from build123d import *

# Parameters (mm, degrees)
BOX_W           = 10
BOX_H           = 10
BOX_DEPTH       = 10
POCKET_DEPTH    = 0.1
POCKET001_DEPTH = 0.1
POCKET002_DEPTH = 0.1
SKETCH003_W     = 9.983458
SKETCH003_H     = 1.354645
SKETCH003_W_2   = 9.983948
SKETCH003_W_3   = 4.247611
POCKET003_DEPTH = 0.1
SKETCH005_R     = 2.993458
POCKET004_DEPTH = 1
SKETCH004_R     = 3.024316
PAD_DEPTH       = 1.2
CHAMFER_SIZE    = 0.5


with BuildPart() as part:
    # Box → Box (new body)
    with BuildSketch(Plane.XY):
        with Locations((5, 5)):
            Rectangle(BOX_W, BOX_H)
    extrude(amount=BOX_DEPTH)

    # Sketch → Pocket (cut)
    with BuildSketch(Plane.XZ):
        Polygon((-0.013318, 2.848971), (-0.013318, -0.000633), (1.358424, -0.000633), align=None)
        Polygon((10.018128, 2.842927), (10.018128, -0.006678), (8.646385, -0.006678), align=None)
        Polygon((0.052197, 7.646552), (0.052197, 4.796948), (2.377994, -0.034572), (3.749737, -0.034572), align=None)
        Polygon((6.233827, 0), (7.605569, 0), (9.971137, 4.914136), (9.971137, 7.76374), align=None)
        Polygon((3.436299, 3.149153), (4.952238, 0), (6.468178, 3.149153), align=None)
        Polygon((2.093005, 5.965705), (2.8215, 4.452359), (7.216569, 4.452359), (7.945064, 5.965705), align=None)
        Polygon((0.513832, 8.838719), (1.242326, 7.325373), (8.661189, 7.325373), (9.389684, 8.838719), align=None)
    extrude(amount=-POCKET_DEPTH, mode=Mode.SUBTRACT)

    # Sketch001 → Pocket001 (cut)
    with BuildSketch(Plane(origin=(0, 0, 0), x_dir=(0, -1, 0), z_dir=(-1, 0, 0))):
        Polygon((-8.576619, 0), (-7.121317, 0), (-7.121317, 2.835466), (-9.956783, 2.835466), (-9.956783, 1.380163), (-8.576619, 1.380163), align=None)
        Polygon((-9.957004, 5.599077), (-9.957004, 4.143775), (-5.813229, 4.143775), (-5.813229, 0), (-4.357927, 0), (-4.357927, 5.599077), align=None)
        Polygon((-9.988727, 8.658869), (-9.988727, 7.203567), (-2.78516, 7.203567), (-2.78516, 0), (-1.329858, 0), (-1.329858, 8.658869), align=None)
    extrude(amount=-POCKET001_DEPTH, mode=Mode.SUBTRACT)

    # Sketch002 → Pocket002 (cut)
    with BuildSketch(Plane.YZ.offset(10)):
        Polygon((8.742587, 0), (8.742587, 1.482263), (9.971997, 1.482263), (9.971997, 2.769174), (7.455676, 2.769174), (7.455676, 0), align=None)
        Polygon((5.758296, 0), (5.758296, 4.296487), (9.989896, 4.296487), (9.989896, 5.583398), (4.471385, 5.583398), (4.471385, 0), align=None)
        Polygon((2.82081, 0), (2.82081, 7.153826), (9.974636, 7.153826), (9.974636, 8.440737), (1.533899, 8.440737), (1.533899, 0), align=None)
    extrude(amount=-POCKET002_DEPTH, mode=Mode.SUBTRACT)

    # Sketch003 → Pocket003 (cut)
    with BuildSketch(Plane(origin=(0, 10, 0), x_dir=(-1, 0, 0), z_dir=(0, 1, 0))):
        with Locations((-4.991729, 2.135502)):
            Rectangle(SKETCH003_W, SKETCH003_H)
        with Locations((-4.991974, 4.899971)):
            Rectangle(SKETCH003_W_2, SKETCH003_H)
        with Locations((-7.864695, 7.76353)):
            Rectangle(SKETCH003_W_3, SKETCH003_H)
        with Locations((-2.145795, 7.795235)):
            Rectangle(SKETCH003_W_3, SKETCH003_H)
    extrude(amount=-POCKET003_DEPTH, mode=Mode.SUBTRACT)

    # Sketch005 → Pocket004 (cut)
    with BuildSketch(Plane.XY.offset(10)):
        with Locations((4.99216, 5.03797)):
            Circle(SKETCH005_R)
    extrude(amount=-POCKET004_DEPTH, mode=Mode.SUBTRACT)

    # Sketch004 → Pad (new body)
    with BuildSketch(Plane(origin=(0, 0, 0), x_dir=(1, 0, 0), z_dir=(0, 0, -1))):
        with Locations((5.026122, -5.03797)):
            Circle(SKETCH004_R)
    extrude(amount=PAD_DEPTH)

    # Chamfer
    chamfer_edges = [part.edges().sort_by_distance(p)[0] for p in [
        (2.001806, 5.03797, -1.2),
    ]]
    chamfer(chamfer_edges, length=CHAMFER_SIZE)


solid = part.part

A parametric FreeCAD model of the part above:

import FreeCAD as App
import Part
import Sketcher
from FreeCAD import Vector


def edges_at(feature, points):
    """Names of the edges that pass closest to the given points."""
    edges = feature.Shape.Edges
    near = lambda p: min(range(len(edges)), key=lambda i: edges[i].distToShape(Part.Vertex(*p))[0])
    return sorted({f"Edge{near(p) + 1}" for p in points})


def add_polygon(sketch, points):
    """Adds a closed chain of lines whose ends are joined by coincident constraints."""
    first, n = sketch.GeometryCount, len(points)
    for a, b in zip(points, points[1:] + points[:1]):
        sketch.addGeometry(Part.LineSegment(App.Vector(*a, 0), App.Vector(*b, 0)), False)
    for i in range(n):
        sketch.addConstraint(Sketcher.Constraint("Coincident", first + i, 2, first + (i + 1) % n, 1))

doc = App.newDocument("Part")
body = doc.addObject("PartDesign::Body", "Body")

# Sketch on XY plane
sketch1 = doc.addObject("Sketcher::SketchObject", "Sketch")
body.addObject(sketch1)
sketch1.AttachmentSupport = (doc.XY_Plane, [""])
sketch1.MapMode = "FlatFace"
add_polygon(sketch1, [(0, 10), (0, 0), (10, 0), (10, 10)])  # lines 0-3
sketch1.addConstraint([
    Sketcher.Constraint("Vertical", 0),
    Sketcher.Constraint("Horizontal", 1),
    Sketcher.Constraint("Vertical", 2),
    Sketcher.Constraint("Horizontal", 3),
    Sketcher.Constraint("Coincident", 0, 2, -1, 1),
    Sketcher.Constraint("Equal", 3, 0),
    Sketcher.Constraint("DistanceX", 1, 1, 1, 2, 10.0),
])
pad1 = doc.addObject("PartDesign::Pad", "Pad")
body.addObject(pad1)
pad1.Profile = sketch1
pad1.Length = 10

# Sketch on XZ plane
sketch2 = doc.addObject("Sketcher::SketchObject", "Sketch001")
body.addObject(sketch2)
sketch2.AttachmentSupport = (doc.XZ_Plane, [""])
sketch2.MapMode = "FlatFace"
add_polygon(sketch2, [(0, 2.8), (0, 0), (1.4, 0)])  # lines 0-2
add_polygon(sketch2, [(10, 0), (10, 2.8), (8.6, 0)])  # lines 3-5
add_polygon(sketch2, [(0.1, 7.6), (0.1, 4.8), (2.4, 0), (3.7, 0)])  # lines 6-9
add_polygon(sketch2, [(6.2, 0), (7.6, 0), (10, 4.9), (10, 7.8)])  # lines 10-13
add_polygon(sketch2, [(3.4, 3.1), (5, 0), (6.5, 3.1)])  # lines 14-16
add_polygon(sketch2, [(2.1, 6), (2.8, 4.5), (7.2, 4.5), (7.9, 6)])  # lines 17-20
add_polygon(sketch2, [(0.5, 8.8), (1.2, 7.3), (8.7, 7.3), (9.4, 8.8)])  # lines 21-24
sketch2.addConstraint([
    Sketcher.Constraint("Vertical", 0),
    Sketcher.Constraint("Horizontal", 1),
    Sketcher.Constraint("Vertical", 3),
    Sketcher.Constraint("Horizontal", 5),
    Sketcher.Constraint("Vertical", 6),
    Sketcher.Constraint("Horizontal", 8),
    Sketcher.Constraint("Horizontal", 10),
    Sketcher.Constraint("Vertical", 12),
    Sketcher.Constraint("Horizontal", 16),
    Sketcher.Constraint("Horizontal", 18),
    Sketcher.Constraint("Horizontal", 20),
    Sketcher.Constraint("Horizontal", 22),
    Sketcher.Constraint("Horizontal", 24),
    Sketcher.Constraint("PointOnObject", 10, 2, -1),
    Sketcher.Constraint("PointOnObject", 14, 2, -1),
    Sketcher.Constraint("Parallel", 2, 7),
    Sketcher.Constraint("Parallel", 7, 9),
    Sketcher.Constraint("Parallel", 4, 11),
    Sketcher.Constraint("Parallel", 11, 13),
    Sketcher.Constraint("Parallel", 9, 14),
    Sketcher.Constraint("Parallel", 13, 15),
    Sketcher.Constraint("Parallel", 14, 17),
    Sketcher.Constraint("Parallel", 15, 19),
    Sketcher.Constraint("Parallel", 17, 21),
    Sketcher.Constraint("Parallel", 19, 23),
    Sketcher.Constraint("Equal", 1, 5),
    Sketcher.Constraint("Equal", 5, 8),
    Sketcher.Constraint("Equal", 8, 10),
    Sketcher.Constraint("Equal", 0, 3),
    Sketcher.Constraint("Equal", 19, 21),
    Sketcher.Constraint("DistanceX", 16, 2, 16, 1, 3.031879),
    Sketcher.Constraint("DistanceX", 18, 1, 18, 2, 4.395069),
    Sketcher.Constraint("DistanceX", 20, 2, 20, 1, 5.852059),
    Sketcher.Constraint("DistanceX", -1, 1, 16, 2, 3.436299),
    Sketcher.Constraint("DistanceX", -1, 1, 17, 2, 2.8215),
    Sketcher.Constraint("DistanceX", 8, 2, 11, 2, 6.2214),
    Sketcher.Constraint("DistanceX", 13, 2, 5, 2, 3.784301),
    Sketcher.Constraint("DistanceX", 8, 2, 14, 2, 1.202501),
    Sketcher.Constraint("Distance", 2, 3.162581),
    Sketcher.Constraint("Distance", 14, 3.49503),
    Sketcher.Constraint("DistanceX", 22, 1, 22, 2, 7.418863),
    Sketcher.Constraint("DistanceY", -1, 1, 2, 2, 2.848971),
    Sketcher.Constraint("DistanceX", -1, 1, 3, 2, 10.018128),
    Sketcher.Constraint("DistanceY", -1, 1, 6, 2, 4.796948),
    Sketcher.Constraint("DistanceY", -1, 1, 17, 2, 4.452359),
    Sketcher.Constraint("DistanceX", -1, 1, 22, 2, 8.661189),
    Sketcher.Constraint("DistanceY", -1, 1, 23, 2, 8.838719),
    Sketcher.Constraint("DistanceY", 1, 2, 3, 2, 2.84356),
    Sketcher.Constraint("DistanceX", 1, 2, 4, 2, 7.287961),
    Sketcher.Constraint("DistanceX", 6, 2, 4, 2, 8.594188),
])
pocket1 = doc.addObject("PartDesign::Pocket", "Pocket")
body.addObject(pocket1)
pocket1.Profile = sketch2
pocket1.Length = 0.1

# Sketch on YZ plane
sketch3 = doc.addObject("Sketcher::SketchObject", "Sketch002")
body.addObject(sketch3)
sketch3.AttachmentSupport = (doc.YZ_Plane, [""])
sketch3.MapMode = "FlatFace"
add_polygon(sketch3, [(8.6, 0), (7.1, 0), (7.1, 2.8), (10, 2.8), (10, 1.4), (8.6, 1.4)])  # lines 0-5
add_polygon(sketch3, [(10, 5.6), (10, 4.1), (5.8, 4.1), (5.8, 0), (4.4, 0), (4.4, 5.6)])  # lines 6-11
add_polygon(sketch3, [(10, 8.7), (10, 7.2), (2.8, 7.2), (2.8, 0), (1.3, 0), (1.3, 8.7)])  # lines 12-17
sketch3.addConstraint([
    Sketcher.Constraint("Horizontal", 0),
    Sketcher.Constraint("Vertical", 1),
    Sketcher.Constraint("Horizontal", 2),
    Sketcher.Constraint("Vertical", 3),
    Sketcher.Constraint("Horizontal", 4),
    Sketcher.Constraint("Vertical", 5),
    Sketcher.Constraint("Vertical", 6),
    Sketcher.Constraint("Horizontal", 7),
    Sketcher.Constraint("Vertical", 8),
    Sketcher.Constraint("Horizontal", 9),
    Sketcher.Constraint("Vertical", 10),
    Sketcher.Constraint("Horizontal", 11),
    Sketcher.Constraint("Vertical", 12),
    Sketcher.Constraint("Horizontal", 13),
    Sketcher.Constraint("Vertical", 14),
    Sketcher.Constraint("Horizontal", 15),
    Sketcher.Constraint("Vertical", 16),
    Sketcher.Constraint("Horizontal", 17),
    Sketcher.Constraint("PointOnObject", 0, 2, -1),
    Sketcher.Constraint("PointOnObject", 8, 2, -1),
    Sketcher.Constraint("PointOnObject", 14, 2, -1),
    Sketcher.Constraint("Equal", 0, 9),
    Sketcher.Constraint("Equal", 9, 15),
    Sketcher.Constraint("Equal", 2, 1),
    Sketcher.Constraint("Equal", 15, 3),
    Sketcher.Constraint("Equal", 3, 6),
    Sketcher.Constraint("Equal", 7, 8),
    Sketcher.Constraint("Equal", 6, 12),
    Sketcher.Constraint("Equal", 13, 14),
    Sketcher.Constraint("DistanceX", 9, 2, 9, 1, 1.455302),
    Sketcher.Constraint("DistanceX", 17, 1, 17, 2, 8.658869),
    Sketcher.Constraint("DistanceY", 2, 2, 12, 2, 4.368101),
    Sketcher.Constraint("DistanceX", 7, 2, 12, 2, 4.175498),
    Sketcher.Constraint("DistanceX", 7, 2, 7, 1, 4.143775),
    Sketcher.Constraint("DistanceX", -1, 1, 4, 2, 8.576619),
    Sketcher.Constraint("DistanceX", -1, 1, 7, 2, 5.813229),
])
pocket2 = doc.addObject("PartDesign::Pocket", "Pocket001")
body.addObject(pocket2)
pocket2.Profile = sketch3
pocket2.Length = 0.1
pocket2.Reversed = True

# Sketch on YZ plane
sketch4 = doc.addObject("Sketcher::SketchObject", "Sketch003")
body.addObject(sketch4)
sketch4.AttachmentSupport = (doc.YZ_Plane, [""])
sketch4.MapMode = "FlatFace"
sketch4.AttachmentOffset = App.Placement(Vector(0, 0, 10), App.Rotation())
add_polygon(sketch4, [(8.7, 0), (8.7, 1.5), (10, 1.5), (10, 2.8), (7.5, 2.8), (7.5, 0)])  # lines 0-5
add_polygon(sketch4, [(5.8, 0), (5.8, 4.3), (10, 4.3), (10, 5.6), (4.5, 5.6), (4.5, 0)])  # lines 6-11
add_polygon(sketch4, [(2.8, 0), (2.8, 7.2), (10, 7.2), (10, 8.4), (1.5, 8.4), (1.5, 0)])  # lines 12-17
sketch4.addConstraint([
    Sketcher.Constraint("Vertical", 0),
    Sketcher.Constraint("Horizontal", 1),
    Sketcher.Constraint("Vertical", 2),
    Sketcher.Constraint("Horizontal", 3),
    Sketcher.Constraint("Vertical", 4),
    Sketcher.Constraint("Horizontal", 5),
    Sketcher.Constraint("Vertical", 6),
    Sketcher.Constraint("Horizontal", 7),
    Sketcher.Constraint("Vertical", 8),
    Sketcher.Constraint("Horizontal", 9),
    Sketcher.Constraint("Vertical", 10),
    Sketcher.Constraint("Horizontal", 11),
    Sketcher.Constraint("Vertical", 12),
    Sketcher.Constraint("Horizontal", 13),
    Sketcher.Constraint("Vertical", 14),
    Sketcher.Constraint("Horizontal", 15),
    Sketcher.Constraint("Vertical", 16),
    Sketcher.Constraint("Horizontal", 17),
    Sketcher.Constraint("PointOnObject", 4, 2, -1),
    Sketcher.Constraint("PointOnObject", 10, 2, -1),
    Sketcher.Constraint("PointOnObject", 16, 2, -1),
    Sketcher.Constraint("Equal", 5, 11),
    Sketcher.Constraint("Equal", 11, 17),
    Sketcher.Constraint("Equal", 17, 2),
    Sketcher.Constraint("Equal", 2, 8),
    Sketcher.Constraint("Equal", 13, 12),
    Sketcher.Constraint("Equal", 8, 14),
    Sketcher.Constraint("DistanceX", 7, 1, 7, 2, 4.2316),
    Sketcher.Constraint("DistanceX", 1, 1, 1, 2, 1.22941),
    Sketcher.Constraint("DistanceX", 3, 2, 3, 1, 2.516321),
    Sketcher.Constraint("DistanceX", -1, 1, 15, 2, 1.533899),
    Sketcher.Constraint("DistanceX", 6, 2, 2, 2, 4.213701),
    Sketcher.Constraint("DistanceX", 13, 1, 13, 2, 7.153826),
    Sketcher.Constraint("DistanceY", 0, 1, 0, 2, 1.482263),
    Sketcher.Constraint("DistanceY", 6, 1, 6, 2, 4.296487),
    Sketcher.Constraint("DistanceX", 13, 2, 8, 2, 0.01526),
])
pocket3 = doc.addObject("PartDesign::Pocket", "Pocket002")
body.addObject(pocket3)
pocket3.Profile = sketch4
pocket3.Length = 0.1

# Sketch on XZ plane
sketch5 = doc.addObject("Sketcher::SketchObject", "Sketch004")
body.addObject(sketch5)
sketch5.AttachmentSupport = (doc.XZ_Plane, [""])
sketch5.MapMode = "FlatFace"
sketch5.AttachmentOffset = App.Placement(Vector(0, 0, -10), App.Rotation())
add_polygon(sketch5, [(10, 2.8), (10, 1.5), (0, 1.5), (0, 2.8)])  # lines 0-3
add_polygon(sketch5, [(10, 5.6), (10, 4.2), (0, 4.2), (0, 5.6)])  # lines 4-7
add_polygon(sketch5, [(10, 8.4), (10, 7.1), (5.7, 7.1), (5.7, 8.4)])  # lines 8-11
add_polygon(sketch5, [(4.3, 8.5), (4.3, 7.1), (0, 7.1), (0, 8.5)])  # lines 12-15
sketch5.addConstraint([
    Sketcher.Constraint("Vertical", 0),
    Sketcher.Constraint("Horizontal", 1),
    Sketcher.Constraint("Vertical", 2),
    Sketcher.Constraint("Horizontal", 3),
    Sketcher.Constraint("Vertical", 4),
    Sketcher.Constraint("Horizontal", 5),
    Sketcher.Constraint("Vertical", 6),
    Sketcher.Constraint("Horizontal", 7),
    Sketcher.Constraint("Vertical", 8),
    Sketcher.Constraint("Horizontal", 9),
    Sketcher.Constraint("Vertical", 10),
    Sketcher.Constraint("Horizontal", 11),
    Sketcher.Constraint("Vertical", 12),
    Sketcher.Constraint("Horizontal", 13),
    Sketcher.Constraint("Vertical", 14),
    Sketcher.Constraint("Horizontal", 15),
    Sketcher.Constraint("PointOnObject", 1, 2, -2),
    Sketcher.Constraint("PointOnObject", 5, 2, -2),
    Sketcher.Constraint("Equal", 11, 13),
    Sketcher.Constraint("Equal", 2, 4),
    Sketcher.Constraint("Equal", 6, 8),
    Sketcher.Constraint("Equal", 10, 12),
    Sketcher.Constraint("DistanceX", 1, 2, 1, 1, 9.983458),
    Sketcher.Constraint("DistanceX", 9, 2, 9, 1, 4.247611),
    Sketcher.Constraint("DistanceX", -1, 1, 8, 2, 9.988501),
    Sketcher.Constraint("DistanceX", -1, 1, 12, 2, 4.269601),
    Sketcher.Constraint("DistanceX", 5, 2, 5, 1, 9.983948),
    Sketcher.Constraint("DistanceY", 0, 2, 0, 1, 1.354645),
    Sketcher.Constraint("DistanceY", -1, 1, 0, 2, 1.458179),
    Sketcher.Constraint("DistanceY", -1, 1, 4, 2, 4.222649),
    Sketcher.Constraint("DistanceY", 4, 2, 8, 2, 2.863559),
    Sketcher.Constraint("DistanceY", 12, 2, 10, 2, 1.32294),
])
pocket4 = doc.addObject("PartDesign::Pocket", "Pocket003")
body.addObject(pocket4)
pocket4.Profile = sketch5
pocket4.Length = 0.1
pocket4.Reversed = True

# Sketch on XY plane
sketch6 = doc.addObject("Sketcher::SketchObject", "Sketch005")
body.addObject(sketch6)
sketch6.AttachmentSupport = (doc.XY_Plane, [""])
sketch6.MapMode = "FlatFace"
sketch6.AttachmentOffset = App.Placement(Vector(0, 0, 10), App.Rotation())
sketch6.addGeometry(Part.Circle(Vector(5, 5, 0), Vector(0, 0, 1), 3), False)
sketch6.addConstraint([
    Sketcher.Constraint("Diameter", 0, 5.986916),
    Sketcher.Constraint("DistanceX", -1, 1, 0, 3, 4.99216),
    Sketcher.Constraint("DistanceY", -1, 1, 0, 3, 5.03797),
])
pocket5 = doc.addObject("PartDesign::Pocket", "Pocket004")
body.addObject(pocket5)
pocket5.Profile = sketch6
pocket5.Length = 1

# Sketch on XY plane
sketch7 = doc.addObject("Sketcher::SketchObject", "Sketch006")
body.addObject(sketch7)
sketch7.AttachmentSupport = (doc.XY_Plane, [""])
sketch7.MapMode = "FlatFace"
sketch7.addGeometry(Part.Circle(Vector(5, 5, 0), Vector(0, 0, 1), 3), False)
sketch7.addConstraint([
    Sketcher.Constraint("Diameter", 0, 6.048632),
    Sketcher.Constraint("DistanceY", -1, 1, 0, 3, 5.03797),
    Sketcher.Constraint("DistanceX", -1, 1, 0, 3, 5.026122),
])
pad2 = doc.addObject("PartDesign::Pad", "Pad001")
body.addObject(pad2)
pad2.Profile = sketch7
pad2.Length = 1.2
pad2.Reversed = True
doc.recompute()

chamfer = doc.addObject("PartDesign::Chamfer", "Chamfer")
body.addObject(chamfer)
chamfer.Base = (pad2, edges_at(pad2, [(2.002, 5.038, -1.2)]))
chamfer.Size = 0.5

doc.recompute()
